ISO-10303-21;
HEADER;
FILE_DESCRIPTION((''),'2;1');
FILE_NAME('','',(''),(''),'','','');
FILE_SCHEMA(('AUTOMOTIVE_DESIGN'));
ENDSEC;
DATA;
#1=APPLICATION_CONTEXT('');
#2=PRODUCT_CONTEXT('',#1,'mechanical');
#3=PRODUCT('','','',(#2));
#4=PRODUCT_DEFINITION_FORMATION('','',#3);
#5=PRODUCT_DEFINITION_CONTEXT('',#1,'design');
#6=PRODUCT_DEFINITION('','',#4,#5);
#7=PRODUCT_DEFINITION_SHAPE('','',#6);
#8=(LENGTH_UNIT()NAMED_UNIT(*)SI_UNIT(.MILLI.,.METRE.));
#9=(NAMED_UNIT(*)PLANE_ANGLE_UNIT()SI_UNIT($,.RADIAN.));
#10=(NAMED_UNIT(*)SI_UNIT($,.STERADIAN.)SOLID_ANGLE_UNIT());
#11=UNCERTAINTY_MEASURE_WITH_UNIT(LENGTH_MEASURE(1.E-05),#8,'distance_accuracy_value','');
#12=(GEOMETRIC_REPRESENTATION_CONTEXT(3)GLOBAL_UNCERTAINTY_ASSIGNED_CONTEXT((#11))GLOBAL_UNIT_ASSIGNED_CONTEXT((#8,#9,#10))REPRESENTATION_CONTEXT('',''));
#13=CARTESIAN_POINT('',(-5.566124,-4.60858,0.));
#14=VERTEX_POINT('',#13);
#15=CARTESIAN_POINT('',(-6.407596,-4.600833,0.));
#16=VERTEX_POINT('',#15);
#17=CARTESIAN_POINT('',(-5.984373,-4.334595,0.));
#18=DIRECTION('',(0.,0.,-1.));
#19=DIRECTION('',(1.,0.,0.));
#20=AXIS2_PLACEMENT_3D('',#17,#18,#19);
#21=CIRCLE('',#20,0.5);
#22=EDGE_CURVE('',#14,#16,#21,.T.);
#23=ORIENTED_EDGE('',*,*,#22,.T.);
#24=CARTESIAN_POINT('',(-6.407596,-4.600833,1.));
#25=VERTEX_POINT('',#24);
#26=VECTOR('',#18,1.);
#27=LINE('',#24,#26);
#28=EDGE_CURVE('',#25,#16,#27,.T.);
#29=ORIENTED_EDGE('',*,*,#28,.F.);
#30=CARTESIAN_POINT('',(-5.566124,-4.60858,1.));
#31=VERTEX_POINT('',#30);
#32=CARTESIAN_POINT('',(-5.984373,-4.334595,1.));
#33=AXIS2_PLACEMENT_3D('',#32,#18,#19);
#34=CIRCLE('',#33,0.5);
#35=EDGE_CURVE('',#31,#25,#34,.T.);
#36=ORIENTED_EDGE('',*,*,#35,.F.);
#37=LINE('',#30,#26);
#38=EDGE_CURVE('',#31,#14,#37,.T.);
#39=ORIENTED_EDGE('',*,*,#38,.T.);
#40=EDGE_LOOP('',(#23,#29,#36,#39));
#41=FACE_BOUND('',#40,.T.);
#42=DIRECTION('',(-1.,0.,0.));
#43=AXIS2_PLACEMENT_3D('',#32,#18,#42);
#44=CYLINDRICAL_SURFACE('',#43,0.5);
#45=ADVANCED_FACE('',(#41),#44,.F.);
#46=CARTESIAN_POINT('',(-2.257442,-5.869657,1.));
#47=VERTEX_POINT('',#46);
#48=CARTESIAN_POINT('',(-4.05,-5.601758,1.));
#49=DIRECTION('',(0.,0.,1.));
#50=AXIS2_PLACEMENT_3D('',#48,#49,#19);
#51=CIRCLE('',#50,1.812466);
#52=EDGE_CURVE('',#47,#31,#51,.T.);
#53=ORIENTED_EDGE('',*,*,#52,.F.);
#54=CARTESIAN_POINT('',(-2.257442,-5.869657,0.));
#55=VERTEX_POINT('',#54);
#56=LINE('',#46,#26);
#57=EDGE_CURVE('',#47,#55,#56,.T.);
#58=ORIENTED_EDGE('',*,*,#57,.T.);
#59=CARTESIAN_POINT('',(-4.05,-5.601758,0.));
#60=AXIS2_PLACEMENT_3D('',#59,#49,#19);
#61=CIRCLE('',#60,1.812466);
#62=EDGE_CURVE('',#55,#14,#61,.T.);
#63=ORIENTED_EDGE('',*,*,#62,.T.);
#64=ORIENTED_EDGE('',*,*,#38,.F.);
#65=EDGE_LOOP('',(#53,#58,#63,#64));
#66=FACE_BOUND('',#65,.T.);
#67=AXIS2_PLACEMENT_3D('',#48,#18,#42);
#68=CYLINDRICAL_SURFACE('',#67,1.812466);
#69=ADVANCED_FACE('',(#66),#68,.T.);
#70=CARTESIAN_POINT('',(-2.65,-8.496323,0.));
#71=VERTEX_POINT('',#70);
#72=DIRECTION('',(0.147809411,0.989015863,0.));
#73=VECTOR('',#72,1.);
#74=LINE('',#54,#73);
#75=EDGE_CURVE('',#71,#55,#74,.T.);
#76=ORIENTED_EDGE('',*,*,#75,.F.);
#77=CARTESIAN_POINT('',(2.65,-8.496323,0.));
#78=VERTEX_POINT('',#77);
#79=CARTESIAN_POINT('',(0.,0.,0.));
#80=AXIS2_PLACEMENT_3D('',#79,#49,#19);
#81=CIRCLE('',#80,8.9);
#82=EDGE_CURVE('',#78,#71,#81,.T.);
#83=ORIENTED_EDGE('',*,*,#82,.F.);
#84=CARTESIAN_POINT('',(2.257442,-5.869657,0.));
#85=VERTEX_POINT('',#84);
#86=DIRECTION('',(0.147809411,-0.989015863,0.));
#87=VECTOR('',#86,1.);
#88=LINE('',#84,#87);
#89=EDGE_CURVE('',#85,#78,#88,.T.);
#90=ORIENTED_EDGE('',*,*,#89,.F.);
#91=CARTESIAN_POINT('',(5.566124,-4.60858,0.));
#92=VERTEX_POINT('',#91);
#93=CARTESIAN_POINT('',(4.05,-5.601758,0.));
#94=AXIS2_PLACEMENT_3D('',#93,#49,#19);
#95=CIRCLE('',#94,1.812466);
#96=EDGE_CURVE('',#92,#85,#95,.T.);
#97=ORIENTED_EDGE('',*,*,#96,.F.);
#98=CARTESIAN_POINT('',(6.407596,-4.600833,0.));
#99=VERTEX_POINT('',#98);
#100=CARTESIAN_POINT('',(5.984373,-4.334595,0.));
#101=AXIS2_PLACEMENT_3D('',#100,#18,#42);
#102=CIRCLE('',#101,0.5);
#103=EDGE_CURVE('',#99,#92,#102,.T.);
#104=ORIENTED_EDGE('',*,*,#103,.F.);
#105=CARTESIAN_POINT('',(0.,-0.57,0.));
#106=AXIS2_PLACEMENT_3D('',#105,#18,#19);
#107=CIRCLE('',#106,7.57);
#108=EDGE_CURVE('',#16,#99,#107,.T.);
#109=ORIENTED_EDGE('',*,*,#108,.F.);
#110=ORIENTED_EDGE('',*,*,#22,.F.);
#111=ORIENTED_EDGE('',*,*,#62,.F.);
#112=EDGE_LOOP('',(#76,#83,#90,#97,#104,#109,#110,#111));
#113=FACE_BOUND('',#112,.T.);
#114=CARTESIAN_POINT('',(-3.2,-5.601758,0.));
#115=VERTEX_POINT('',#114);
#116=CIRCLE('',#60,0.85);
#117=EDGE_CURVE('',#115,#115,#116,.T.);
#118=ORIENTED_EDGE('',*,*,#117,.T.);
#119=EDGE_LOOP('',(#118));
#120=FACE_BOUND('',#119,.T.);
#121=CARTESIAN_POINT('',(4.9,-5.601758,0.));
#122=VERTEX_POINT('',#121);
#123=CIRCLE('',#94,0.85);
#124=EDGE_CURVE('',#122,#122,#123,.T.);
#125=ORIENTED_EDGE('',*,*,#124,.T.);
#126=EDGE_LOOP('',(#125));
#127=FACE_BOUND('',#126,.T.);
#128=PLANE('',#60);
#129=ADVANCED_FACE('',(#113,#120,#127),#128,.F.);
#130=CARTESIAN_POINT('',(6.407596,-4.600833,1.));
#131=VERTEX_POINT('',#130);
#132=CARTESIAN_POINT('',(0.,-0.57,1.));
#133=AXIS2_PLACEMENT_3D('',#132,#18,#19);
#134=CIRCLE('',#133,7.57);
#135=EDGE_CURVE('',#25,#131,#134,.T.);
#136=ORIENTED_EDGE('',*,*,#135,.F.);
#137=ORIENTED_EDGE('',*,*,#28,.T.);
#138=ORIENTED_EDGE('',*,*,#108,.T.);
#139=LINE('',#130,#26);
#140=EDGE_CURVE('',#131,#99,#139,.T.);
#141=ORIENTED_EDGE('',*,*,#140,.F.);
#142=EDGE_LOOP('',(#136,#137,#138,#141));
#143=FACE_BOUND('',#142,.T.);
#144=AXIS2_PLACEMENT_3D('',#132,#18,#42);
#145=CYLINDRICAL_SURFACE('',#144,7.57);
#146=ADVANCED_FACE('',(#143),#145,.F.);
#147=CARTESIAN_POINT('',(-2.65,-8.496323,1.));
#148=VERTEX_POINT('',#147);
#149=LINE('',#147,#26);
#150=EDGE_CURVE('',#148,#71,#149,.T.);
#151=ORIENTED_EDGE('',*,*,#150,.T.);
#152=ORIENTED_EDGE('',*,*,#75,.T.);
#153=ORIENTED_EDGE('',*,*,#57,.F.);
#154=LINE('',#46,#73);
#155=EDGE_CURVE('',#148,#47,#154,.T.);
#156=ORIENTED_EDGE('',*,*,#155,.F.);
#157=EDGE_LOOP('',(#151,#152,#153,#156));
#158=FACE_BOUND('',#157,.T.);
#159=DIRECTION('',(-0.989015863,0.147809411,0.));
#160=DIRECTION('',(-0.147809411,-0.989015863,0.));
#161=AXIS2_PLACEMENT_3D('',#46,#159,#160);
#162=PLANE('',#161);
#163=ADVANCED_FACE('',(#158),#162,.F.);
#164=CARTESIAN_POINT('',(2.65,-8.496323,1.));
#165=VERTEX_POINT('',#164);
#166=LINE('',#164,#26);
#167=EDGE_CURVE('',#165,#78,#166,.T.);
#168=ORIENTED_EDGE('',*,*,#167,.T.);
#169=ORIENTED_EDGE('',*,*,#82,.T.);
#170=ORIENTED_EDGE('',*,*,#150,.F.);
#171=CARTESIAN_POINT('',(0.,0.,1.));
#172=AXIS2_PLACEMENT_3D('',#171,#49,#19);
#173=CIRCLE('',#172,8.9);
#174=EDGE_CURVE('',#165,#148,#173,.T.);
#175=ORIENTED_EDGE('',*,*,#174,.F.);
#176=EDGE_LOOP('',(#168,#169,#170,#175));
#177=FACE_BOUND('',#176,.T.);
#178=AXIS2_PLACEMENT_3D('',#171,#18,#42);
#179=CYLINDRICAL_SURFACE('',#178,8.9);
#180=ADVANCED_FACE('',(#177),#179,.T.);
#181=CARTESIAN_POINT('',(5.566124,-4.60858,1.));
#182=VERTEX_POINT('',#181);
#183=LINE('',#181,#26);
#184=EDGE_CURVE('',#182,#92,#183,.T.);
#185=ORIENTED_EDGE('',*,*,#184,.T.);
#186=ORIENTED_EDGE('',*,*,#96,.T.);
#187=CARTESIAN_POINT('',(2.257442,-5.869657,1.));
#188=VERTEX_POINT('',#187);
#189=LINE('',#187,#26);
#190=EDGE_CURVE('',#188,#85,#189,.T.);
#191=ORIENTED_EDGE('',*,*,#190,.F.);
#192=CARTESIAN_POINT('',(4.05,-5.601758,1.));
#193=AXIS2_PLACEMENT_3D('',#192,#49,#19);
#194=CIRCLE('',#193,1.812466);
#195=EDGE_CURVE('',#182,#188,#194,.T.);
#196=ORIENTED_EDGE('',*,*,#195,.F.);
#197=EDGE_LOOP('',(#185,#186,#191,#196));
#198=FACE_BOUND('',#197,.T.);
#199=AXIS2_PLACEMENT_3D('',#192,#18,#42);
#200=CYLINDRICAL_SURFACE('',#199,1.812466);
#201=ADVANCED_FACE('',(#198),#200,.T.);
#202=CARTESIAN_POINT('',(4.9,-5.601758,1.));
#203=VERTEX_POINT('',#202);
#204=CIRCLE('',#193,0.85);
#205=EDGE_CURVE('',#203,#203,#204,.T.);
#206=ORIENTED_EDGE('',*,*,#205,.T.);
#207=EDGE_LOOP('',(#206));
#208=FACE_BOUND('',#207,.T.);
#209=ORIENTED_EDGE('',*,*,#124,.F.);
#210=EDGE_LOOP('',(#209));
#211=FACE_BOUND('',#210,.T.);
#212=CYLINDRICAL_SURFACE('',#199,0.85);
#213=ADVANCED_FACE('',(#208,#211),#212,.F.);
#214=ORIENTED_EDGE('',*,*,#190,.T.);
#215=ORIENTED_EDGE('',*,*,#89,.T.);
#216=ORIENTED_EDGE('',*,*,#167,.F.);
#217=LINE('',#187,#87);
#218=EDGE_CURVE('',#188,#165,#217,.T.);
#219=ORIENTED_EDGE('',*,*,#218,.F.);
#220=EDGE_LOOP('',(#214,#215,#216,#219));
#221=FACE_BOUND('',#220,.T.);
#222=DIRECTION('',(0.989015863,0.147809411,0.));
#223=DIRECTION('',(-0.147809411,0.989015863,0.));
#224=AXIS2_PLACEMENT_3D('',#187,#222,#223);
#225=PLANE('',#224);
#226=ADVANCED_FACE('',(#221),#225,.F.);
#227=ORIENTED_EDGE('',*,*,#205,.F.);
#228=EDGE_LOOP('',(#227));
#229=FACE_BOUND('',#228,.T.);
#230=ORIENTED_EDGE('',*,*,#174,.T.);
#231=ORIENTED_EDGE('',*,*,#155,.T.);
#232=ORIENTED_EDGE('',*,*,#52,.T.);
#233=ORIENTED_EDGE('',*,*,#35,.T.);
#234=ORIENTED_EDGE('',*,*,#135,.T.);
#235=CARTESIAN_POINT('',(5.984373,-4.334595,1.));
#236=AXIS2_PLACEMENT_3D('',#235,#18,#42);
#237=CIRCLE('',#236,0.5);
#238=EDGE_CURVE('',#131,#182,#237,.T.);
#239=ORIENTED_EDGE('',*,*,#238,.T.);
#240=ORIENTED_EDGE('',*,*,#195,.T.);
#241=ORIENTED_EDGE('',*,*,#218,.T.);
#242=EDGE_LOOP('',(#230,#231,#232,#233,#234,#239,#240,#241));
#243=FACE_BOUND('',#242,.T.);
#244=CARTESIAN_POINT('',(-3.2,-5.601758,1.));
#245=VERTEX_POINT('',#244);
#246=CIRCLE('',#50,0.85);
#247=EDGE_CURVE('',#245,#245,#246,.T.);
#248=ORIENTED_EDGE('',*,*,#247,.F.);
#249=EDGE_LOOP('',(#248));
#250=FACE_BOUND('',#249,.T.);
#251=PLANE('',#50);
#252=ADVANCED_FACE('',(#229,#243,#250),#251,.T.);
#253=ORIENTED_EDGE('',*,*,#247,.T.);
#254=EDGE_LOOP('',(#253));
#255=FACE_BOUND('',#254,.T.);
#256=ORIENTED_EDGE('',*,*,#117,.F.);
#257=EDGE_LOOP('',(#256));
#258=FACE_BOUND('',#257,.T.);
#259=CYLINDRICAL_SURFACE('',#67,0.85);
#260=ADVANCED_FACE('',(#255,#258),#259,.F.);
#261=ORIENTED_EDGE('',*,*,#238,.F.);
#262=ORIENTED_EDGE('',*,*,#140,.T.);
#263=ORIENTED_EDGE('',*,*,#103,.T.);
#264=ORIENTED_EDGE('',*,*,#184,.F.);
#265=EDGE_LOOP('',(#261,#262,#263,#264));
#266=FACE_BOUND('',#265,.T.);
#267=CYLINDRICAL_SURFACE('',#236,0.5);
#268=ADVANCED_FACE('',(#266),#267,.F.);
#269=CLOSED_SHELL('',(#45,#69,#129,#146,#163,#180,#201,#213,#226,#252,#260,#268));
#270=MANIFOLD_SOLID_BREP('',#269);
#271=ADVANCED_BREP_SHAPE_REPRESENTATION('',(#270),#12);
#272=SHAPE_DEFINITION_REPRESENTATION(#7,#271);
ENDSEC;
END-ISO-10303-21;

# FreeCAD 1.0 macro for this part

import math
import FreeCAD as App
import Part
import Sketcher
from FreeCAD import Vector
Q = App.Units.Quantity

doc = App.newDocument("Part")
body = doc.addObject("PartDesign::Body", "Body")

# Sketch on XY plane
sketch1 = doc.addObject("Sketcher::SketchObject", "Sketch")
body.addObject(sketch1)
sketch1.AttachmentSupport = (doc.XY_Plane, [""])
sketch1.MapMode = "FlatFace"
sketch1.addGeometry([
    Part.LineSegment(Vector(-2.6, -8.5, 0), Vector(-2.3, -5.9, 0)),  # 0
    Part.ArcOfCircle(Part.Circle(Vector(-4, -5.6, 0), Vector(0, 0, 1), 1.8), math.radians(-8), math.radians(147)),  # 1
    Part.ArcOfCircle(Part.Circle(Vector(-6, -4.3, 0), Vector(0, 0, 1), 0.5), math.radians(-148), math.radians(-33)),  # 2
    Part.ArcOfCircle(Part.Circle(Vector(0, -0.6, 0), Vector(0, 0, 1), 7.6), math.radians(-32), math.radians(212)),  # 3
    Part.ArcOfCircle(Part.Circle(Vector(6, -4.3, 0), Vector(0, 0, 1), 0.5), math.radians(-147), math.radians(-32)),  # 4
    Part.ArcOfCircle(Part.Circle(Vector(4, -5.6, 0), Vector(0, 0, 1), 1.8), math.radians(33), math.radians(188)),  # 5
    Part.LineSegment(Vector(2.3, -5.9, 0), Vector(2.6, -8.5, 0)),  # 6
    Part.ArcOfCircle(Part.Circle(Vector(0, 0, 0), Vector(0, 0, 1), 8.9), math.radians(-73), math.radians(253)),  # 7
    Part.Circle(Vector(4, -5.6, 0), Vector(0, 0, 1), 0.8),  # 8
    Part.Circle(Vector(-4, -5.6, 0), Vector(0, 0, 1), 0.8),  # 9
], False)
sketch1.addConstraint([
    Sketcher.Constraint("Tangent", 0, 2, 1, 1),
    Sketcher.Constraint("Tangent", 1, 2, 2, 2),
    Sketcher.Constraint("Tangent", 2, 1, 3, 2),
    Sketcher.Constraint("Tangent", 3, 1, 4, 2),
    Sketcher.Constraint("Tangent", 4, 1, 5, 1),
    Sketcher.Constraint("Tangent", 5, 2, 6, 1),
    Sketcher.Constraint("Coincident", 6, 2, 7, 1),
    Sketcher.Constraint("Coincident", 7, 2, 0, 1),
    Sketcher.Constraint("Coincident", 7, 3, -1, 1),
    Sketcher.Constraint("Coincident", 8, 3, 5, 3),
    Sketcher.Constraint("Coincident", 9, 3, 1, 3),
    Sketcher.Constraint("Equal", 2, 4),
    Sketcher.Constraint("Equal", 1, 5),
    Sketcher.Constraint("Equal", 8, 9),
    Sketcher.Constraint("Symmetric", 2, 3, 4, 3, -2),
    Sketcher.Constraint("Symmetric", 0, 2, 5, 2, -2),
    Sketcher.Constraint("Diameter", 8, Q("1.7 mm")),
    Sketcher.Constraint("Radius", 2, Q("0.5 mm")),
    Sketcher.Constraint("Radius", 7, Q("8.9 mm")),
    Sketcher.Constraint("Radius", 3, Q("7.57 mm")),
    Sketcher.Constraint("Angle", 0, Q("81.5 deg")),
    Sketcher.Constraint("DistanceX", 1, 3, 5, 3, Q("8.1 mm")),
    Sketcher.Constraint("DistanceX", 6, 2, 5, 3, Q("1.4 mm")),
    Sketcher.Constraint("DistanceY", 3, 3, -1, 1, Q("0.57 mm")),
    Sketcher.Constraint("Radius", 1, Q("1.812466 mm")),
])
pad1 = doc.addObject("PartDesign::Pad", "Pad")
body.addObject(pad1)
pad1.Profile = sketch1
pad1.Length = 1

doc.recompute()
